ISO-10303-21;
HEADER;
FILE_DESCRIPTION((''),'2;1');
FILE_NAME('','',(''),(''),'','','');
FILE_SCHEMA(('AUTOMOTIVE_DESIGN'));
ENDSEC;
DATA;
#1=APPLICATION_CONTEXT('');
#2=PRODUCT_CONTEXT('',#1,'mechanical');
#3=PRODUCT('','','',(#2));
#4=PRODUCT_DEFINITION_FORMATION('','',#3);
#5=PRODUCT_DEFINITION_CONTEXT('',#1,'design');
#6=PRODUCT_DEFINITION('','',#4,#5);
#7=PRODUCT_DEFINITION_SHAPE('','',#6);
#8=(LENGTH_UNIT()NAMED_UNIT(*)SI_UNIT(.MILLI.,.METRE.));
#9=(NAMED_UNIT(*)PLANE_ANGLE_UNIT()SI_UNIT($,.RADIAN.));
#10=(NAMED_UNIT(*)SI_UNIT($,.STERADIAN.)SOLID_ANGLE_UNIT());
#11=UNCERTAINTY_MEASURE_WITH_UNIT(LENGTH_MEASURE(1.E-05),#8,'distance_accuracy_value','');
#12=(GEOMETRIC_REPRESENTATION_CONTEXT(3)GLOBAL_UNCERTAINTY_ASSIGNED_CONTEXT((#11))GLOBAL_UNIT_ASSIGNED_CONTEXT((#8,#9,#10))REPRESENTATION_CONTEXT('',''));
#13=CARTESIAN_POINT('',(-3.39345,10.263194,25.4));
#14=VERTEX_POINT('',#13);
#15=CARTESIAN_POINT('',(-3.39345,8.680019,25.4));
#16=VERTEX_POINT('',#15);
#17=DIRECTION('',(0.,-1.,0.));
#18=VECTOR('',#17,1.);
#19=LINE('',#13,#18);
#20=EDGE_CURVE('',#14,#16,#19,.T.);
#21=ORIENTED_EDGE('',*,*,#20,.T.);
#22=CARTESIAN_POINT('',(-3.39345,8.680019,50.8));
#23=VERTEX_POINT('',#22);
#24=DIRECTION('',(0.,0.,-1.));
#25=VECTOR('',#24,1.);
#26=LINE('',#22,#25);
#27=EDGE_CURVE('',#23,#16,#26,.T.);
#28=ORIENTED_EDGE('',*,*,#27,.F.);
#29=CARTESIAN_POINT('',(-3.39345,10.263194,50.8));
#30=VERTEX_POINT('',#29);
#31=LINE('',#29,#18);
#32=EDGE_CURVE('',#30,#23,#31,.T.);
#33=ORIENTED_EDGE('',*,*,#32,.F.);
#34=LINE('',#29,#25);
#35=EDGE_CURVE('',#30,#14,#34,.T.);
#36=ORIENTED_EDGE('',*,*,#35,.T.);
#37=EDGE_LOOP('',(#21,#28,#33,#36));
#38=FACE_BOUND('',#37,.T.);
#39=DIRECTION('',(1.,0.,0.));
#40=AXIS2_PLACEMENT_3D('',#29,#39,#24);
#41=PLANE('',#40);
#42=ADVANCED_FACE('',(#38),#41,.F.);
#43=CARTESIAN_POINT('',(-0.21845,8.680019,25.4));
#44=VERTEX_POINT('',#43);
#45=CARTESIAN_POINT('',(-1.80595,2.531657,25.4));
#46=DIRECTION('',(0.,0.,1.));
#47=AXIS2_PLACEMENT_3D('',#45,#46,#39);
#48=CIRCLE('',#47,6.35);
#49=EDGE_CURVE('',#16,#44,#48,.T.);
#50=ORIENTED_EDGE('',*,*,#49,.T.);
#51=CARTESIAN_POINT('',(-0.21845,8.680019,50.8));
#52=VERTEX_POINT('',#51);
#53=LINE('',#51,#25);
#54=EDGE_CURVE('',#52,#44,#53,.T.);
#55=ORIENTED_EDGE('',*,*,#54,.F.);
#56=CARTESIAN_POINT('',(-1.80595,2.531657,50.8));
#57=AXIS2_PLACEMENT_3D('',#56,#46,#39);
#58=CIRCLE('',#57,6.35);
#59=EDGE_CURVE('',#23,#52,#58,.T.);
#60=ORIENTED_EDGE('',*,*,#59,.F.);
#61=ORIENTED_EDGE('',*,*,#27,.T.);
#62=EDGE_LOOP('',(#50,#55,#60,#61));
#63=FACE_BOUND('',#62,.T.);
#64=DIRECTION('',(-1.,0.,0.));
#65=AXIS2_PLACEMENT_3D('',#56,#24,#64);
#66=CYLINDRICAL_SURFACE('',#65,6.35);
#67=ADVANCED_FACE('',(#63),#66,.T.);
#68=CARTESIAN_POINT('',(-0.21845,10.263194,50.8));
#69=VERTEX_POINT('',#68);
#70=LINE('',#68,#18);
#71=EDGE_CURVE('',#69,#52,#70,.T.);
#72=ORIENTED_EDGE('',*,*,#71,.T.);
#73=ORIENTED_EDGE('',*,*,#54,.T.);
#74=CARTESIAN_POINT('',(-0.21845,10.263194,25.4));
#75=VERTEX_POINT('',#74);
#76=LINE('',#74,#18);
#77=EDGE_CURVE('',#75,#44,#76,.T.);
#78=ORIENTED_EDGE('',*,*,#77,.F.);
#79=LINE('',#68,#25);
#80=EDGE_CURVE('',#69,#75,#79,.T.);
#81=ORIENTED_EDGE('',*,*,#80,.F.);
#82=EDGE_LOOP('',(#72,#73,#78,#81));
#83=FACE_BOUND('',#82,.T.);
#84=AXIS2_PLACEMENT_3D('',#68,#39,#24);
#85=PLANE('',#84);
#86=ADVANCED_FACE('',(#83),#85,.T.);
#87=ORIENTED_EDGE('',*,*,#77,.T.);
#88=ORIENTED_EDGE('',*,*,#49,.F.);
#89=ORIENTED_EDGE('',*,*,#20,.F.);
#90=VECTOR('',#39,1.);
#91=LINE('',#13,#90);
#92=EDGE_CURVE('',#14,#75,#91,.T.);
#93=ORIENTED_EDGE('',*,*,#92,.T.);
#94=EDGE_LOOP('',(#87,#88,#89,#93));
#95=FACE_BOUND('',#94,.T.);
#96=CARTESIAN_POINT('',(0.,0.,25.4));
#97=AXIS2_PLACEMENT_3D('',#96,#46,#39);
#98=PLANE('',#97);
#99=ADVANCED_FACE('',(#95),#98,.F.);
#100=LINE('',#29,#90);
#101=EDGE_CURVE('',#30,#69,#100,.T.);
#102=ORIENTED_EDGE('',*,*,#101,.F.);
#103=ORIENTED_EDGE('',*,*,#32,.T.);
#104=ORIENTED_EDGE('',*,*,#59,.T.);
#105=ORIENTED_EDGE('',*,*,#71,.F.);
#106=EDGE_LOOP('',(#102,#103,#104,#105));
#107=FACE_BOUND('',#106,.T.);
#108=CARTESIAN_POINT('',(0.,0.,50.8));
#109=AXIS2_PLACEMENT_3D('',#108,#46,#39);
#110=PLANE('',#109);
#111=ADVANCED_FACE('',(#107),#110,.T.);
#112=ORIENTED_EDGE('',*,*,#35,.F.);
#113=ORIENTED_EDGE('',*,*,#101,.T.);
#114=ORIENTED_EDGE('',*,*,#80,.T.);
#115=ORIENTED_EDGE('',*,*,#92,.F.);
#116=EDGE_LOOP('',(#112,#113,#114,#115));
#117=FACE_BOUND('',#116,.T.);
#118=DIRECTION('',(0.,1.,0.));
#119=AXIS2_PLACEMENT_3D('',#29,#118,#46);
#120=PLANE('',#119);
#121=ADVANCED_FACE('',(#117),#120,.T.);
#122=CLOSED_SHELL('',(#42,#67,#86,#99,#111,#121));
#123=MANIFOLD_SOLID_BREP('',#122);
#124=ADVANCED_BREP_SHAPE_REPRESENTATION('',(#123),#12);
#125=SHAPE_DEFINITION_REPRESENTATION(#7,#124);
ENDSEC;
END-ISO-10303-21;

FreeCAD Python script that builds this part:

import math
import FreeCAD as App
import Part
import Sketcher
Q = App.Units.Quantity

doc = App.newDocument("Part")
body = doc.addObject("PartDesign::Body", "Body")

sketch1 = doc.addObject("Sketcher::SketchObject", "Sketch")
body.addObject(sketch1)
sketch1.AttachmentSupport = (doc.XY_Plane, [""])
sketch1.MapMode = "FlatFace"
sketch1.AttachmentOffset = App.Placement(App.Vector(0, 0, 1 * 25.4), App.Rotation())
sketch1.addGeometry([
    Part.ArcOfCircle(Part.Circle(App.Vector(-1.80595, 2.531657, 0), App.Vector(0, 0, 1), 6.35), math.radians(104.477512), math.radians(435.522488)),
    Part.LineSegment(App.Vector(-0.21845, 8.680019, 0), App.Vector(-0.21845, 10.263194, 0)),
    Part.LineSegment(App.Vector(-0.21845, 10.263194, 0), App.Vector(-3.39345, 10.263194, 0)),
    Part.LineSegment(App.Vector(-3.39345, 10.263194, 0), App.Vector(-3.39345, 8.680019, 0)),
], False)
sketch1.addConstraint([
    Sketcher.Constraint("Coincident", 0, 2, 1, 1),
    Sketcher.Constraint("Coincident", 1, 2, 2, 1),
    Sketcher.Constraint("Coincident", 2, 2, 3, 1),
    Sketcher.Constraint("Coincident", 3, 2, 0, 1),
    Sketcher.Constraint("Vertical", 1),
    Sketcher.Constraint("Horizontal", 2),
    Sketcher.Constraint("Vertical", 3),
    Sketcher.Constraint("Horizontal", 0, 2, 3, 2),
    Sketcher.Constraint("Radius", 0, Q("0.25 in")),
    Sketcher.Constraint("DistanceX", 2, 2, 2, 1, Q("0.125 in")),
    Sketcher.Constraint("DistanceY", 1, 1, 1, 2, 1.583175),
    Sketcher.Constraint("DistanceX", 0, 3, -1, 1, 1.80595),
    Sketcher.Constraint("DistanceY", -1, 1, 0, 2, 8.680019),
])
pad1 = doc.addObject("PartDesign::Pad", "Pad")
body.addObject(pad1)
pad1.Profile = sketch1
pad1.Length = Q("1 in")

doc.recompute()
